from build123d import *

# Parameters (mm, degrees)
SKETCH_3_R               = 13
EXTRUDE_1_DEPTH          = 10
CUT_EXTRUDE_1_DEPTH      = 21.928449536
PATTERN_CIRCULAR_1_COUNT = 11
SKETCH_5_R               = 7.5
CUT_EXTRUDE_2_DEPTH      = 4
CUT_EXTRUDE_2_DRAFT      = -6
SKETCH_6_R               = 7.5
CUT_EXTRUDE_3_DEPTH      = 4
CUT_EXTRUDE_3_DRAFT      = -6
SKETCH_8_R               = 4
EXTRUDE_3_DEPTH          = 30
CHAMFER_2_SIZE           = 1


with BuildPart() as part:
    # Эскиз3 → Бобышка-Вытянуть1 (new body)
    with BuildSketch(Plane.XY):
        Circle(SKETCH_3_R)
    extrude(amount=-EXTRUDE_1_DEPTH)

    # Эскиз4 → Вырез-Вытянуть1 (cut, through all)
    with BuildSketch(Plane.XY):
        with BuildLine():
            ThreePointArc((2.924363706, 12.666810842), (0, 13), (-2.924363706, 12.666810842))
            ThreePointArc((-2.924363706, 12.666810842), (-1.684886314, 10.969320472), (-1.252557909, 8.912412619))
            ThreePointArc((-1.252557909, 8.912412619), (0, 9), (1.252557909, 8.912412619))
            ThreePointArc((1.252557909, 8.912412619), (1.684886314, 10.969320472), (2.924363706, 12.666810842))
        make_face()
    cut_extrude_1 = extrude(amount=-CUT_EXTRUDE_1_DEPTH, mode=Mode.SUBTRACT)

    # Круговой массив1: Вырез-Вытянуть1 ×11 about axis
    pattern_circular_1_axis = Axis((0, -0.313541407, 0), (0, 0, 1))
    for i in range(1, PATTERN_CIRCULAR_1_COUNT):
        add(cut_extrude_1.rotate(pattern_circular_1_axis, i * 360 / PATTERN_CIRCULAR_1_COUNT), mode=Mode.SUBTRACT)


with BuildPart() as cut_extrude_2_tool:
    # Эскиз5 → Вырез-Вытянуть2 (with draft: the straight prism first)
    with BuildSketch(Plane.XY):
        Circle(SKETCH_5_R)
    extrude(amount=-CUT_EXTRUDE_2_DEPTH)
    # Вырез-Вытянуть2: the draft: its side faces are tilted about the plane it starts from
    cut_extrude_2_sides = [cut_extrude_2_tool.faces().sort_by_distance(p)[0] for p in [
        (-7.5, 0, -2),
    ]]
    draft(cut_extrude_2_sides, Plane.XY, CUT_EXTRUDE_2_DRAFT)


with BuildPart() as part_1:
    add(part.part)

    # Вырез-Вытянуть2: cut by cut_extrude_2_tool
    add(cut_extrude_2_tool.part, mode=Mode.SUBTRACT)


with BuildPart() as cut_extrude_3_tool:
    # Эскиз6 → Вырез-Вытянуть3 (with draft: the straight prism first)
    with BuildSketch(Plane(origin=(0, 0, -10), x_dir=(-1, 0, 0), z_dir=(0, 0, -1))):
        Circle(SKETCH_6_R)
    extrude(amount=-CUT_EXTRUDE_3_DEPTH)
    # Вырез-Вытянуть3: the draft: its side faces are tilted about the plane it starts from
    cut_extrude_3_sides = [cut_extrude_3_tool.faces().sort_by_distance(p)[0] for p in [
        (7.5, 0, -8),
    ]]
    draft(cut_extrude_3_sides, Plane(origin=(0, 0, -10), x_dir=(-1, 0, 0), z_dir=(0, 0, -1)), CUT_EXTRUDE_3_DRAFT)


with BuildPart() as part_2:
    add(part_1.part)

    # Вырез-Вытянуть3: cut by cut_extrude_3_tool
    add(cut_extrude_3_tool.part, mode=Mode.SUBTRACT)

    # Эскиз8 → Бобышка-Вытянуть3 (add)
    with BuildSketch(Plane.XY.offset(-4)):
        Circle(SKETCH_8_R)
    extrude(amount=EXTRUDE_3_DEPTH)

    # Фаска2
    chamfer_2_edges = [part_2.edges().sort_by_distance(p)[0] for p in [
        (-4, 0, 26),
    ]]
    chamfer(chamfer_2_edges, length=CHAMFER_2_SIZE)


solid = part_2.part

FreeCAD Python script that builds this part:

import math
import FreeCAD as App
import Part
import Sketcher
Q = App.Units.Quantity


def edges_at(feature, points):
    """Names of the edges that pass closest to the given points."""
    edges = feature.Shape.Edges
    near = lambda p: min(range(len(edges)), key=lambda i: edges[i].distToShape(Part.Vertex(*p))[0])
    return sorted({f"Edge{near(p) + 1}" for p in points})


def faces_at(feature, points):
    """Names of the faces that lie closest to the given points."""
    faces = feature.Shape.Faces
    near = lambda p: min(range(len(faces)), key=lambda i: faces[i].distToShape(Part.Vertex(*p))[0])
    return sorted({f"Face{near(p) + 1}" for p in points})

doc = App.newDocument("Part")
body = doc.addObject("PartDesign::Body", "Body")

# Sketch on XY plane
sketch1 = body.newObject("Sketcher::SketchObject", "Sketch")
sketch1.AttachmentSupport = (doc.getObject("XY_Plane"), [""])
sketch1.MapMode = "FlatFace"
sketch1.addGeometry(Part.Circle(App.Vector(0, 0, 0), App.Vector(0, 0, 1), 13), False)
sketch1.addConstraint(Sketcher.Constraint("Coincident", 0, 3, -1, 1))
sketch1.addConstraint(Sketcher.Constraint("Diameter", 0, Q("26 mm")))
pad1 = body.newObject("PartDesign::Pad", "Pad")
pad1.Profile = sketch1
pad1.Length = 10
pad1.Reversed = True

# Sketch on XY plane
sketch2 = body.newObject("Sketcher::SketchObject", "Sketch001")
sketch2.AttachmentSupport = (doc.getObject("XY_Plane"), [""])
sketch2.MapMode = "FlatFace"
sketch2.addGeometry(Part.ArcOfCircle(Part.Circle(App.Vector(0, 0, 0), App.Vector(0, 0, 1), 13), math.radians(77), math.radians(103)), False)
sketch2.addGeometry(Part.ArcOfCircle(Part.Circle(App.Vector(-6.252505, 8.935394, 0), App.Vector(0, 0, 1), 5), math.radians(-0.263343), math.radians(48.269457)), False)
sketch2.addGeometry(Part.ArcOfCircle(Part.Circle(App.Vector(0, 0, 0), App.Vector(0, 0, 1), 9), math.radians(82), math.radians(98)), False)
sketch2.addGeometry(Part.ArcOfCircle(Part.Circle(App.Vector(6.252505, 8.935394, 0), App.Vector(0, 0, 1), 5), math.radians(131.730543), math.radians(180.263343)), False)
sketch2.addConstraint(Sketcher.Constraint("Coincident", 0, 2, 1, 2))
sketch2.addConstraint(Sketcher.Constraint("Coincident", 1, 1, 2, 2))
sketch2.addConstraint(Sketcher.Constraint("Coincident", 2, 1, 3, 2))
sketch2.addConstraint(Sketcher.Constraint("Coincident", 3, 1, 0, 1))
sketch2.addConstraint(Sketcher.Constraint("Coincident", 0, 3, -1, 1))
sketch2.addConstraint(Sketcher.Constraint("Coincident", 2, 3, -1, 1))
sketch2.addConstraint(Sketcher.Constraint("Equal", 1, 3))
sketch2.addConstraint(Sketcher.Constraint("Symmetric", 1, 3, 3, 3, -2))
sketch2.addConstraint(Sketcher.Constraint("Radius", 0, Q("13 mm")))
sketch2.addConstraint(Sketcher.Constraint("Radius", 1, Q("5 mm")))
sketch2.addConstraint(Sketcher.Constraint("Radius", 2, Q("9 mm")))
sketch2.addConstraint(Sketcher.Constraint("DistanceY", 1, 1, 0, 2, Q("3.754398 mm")))
sketch2.addConstraint(Sketcher.Constraint("DistanceY", -1, 1, 0, 2, Q("12.666811 mm")))
pocket1 = body.newObject("PartDesign::Pocket", "Pocket")
pocket1.Profile = sketch2
pocket1.Type = "ThroughAll"
doc.recompute()

datumline = body.newObject("PartDesign::Line", "DatumLine")
datumline.Placement = App.Placement(App.Vector(0, -0.313541, 0), App.Rotation(App.Vector(0, 0, 1), App.Vector(0, 0, 1)))
polarpattern = body.newObject("PartDesign::PolarPattern", "PolarPattern")
polarpattern.Originals = [pocket1]
polarpattern.Axis = (datumline, [""])
polarpattern.Angle = 360
polarpattern.Occurrences = 11
body.Tip = polarpattern
body2 = doc.addObject("PartDesign::Body", "Body001")

# Sketch on XY plane
sketch3 = body2.newObject("Sketcher::SketchObject", "Sketch002")
sketch3.AttachmentSupport = (doc.getObject("XY_Plane001"), [""])
sketch3.MapMode = "FlatFace"
sketch3.addGeometry(Part.Circle(App.Vector(0, 0, 0), App.Vector(0, 0, 1), 7.5), False)
sketch3.addConstraint(Sketcher.Constraint("Coincident", 0, 3, -1, 1))
sketch3.addConstraint(Sketcher.Constraint("Diameter", 0, Q("15 mm")))
pad2 = body2.newObject("PartDesign::Pad", "Pad001")
pad2.Profile = sketch3
pad2.Length = 4
pad2.Reversed = True
doc.recompute()

draft = body2.newObject("PartDesign::Draft", "Draft")
draft.Base = (pad2, faces_at(pad2, [(-7.5, 0, -2)]))
draft.NeutralPlane = (doc.getObject("XY_Plane001"), [""])
draft.Angle = 6
draft.Reversed = True
doc.recompute()

boolean = body.newObject("PartDesign::Boolean", "Boolean")
boolean.Type = "Cut"
boolean.addObjects([body2])
body3 = doc.addObject("PartDesign::Body", "Body002")

# Sketch on XY plane
sketch4 = body3.newObject("Sketcher::SketchObject", "Sketch003")
sketch4.AttachmentSupport = (doc.getObject("XY_Plane002"), [""])
sketch4.MapMode = "FlatFace"
sketch4.AttachmentOffset = App.Placement(App.Vector(0, 0, -10), App.Rotation())
sketch4.addGeometry(Part.Circle(App.Vector(0, 0, 0), App.Vector(0, 0, 1), 7.5), False)
sketch4.addConstraint(Sketcher.Constraint("Coincident", 0, 3, -1, 1))
sketch4.addConstraint(Sketcher.Constraint("Diameter", 0, Q("15 mm")))
pad3 = body3.newObject("PartDesign::Pad", "Pad002")
pad3.Profile = sketch4
pad3.Length = 4
doc.recompute()

datumplane = body3.newObject("PartDesign::Plane", "DatumPlane")
datumplane.AttachmentSupport = (doc.getObject("XY_Plane002"), [""])
datumplane.MapMode = "FlatFace"
datumplane.AttachmentOffset = App.Placement(App.Vector(0, 0, -10), App.Rotation())
draft2 = body3.newObject("PartDesign::Draft", "Draft001")
draft2.Base = (pad3, faces_at(pad3, [(7.5, 0, -8)]))
draft2.NeutralPlane = (datumplane, [""])
draft2.Angle = 6
draft2.Reversed = False
doc.recompute()

boolean2 = body.newObject("PartDesign::Boolean", "Boolean001")
boolean2.Type = "Cut"
boolean2.addObjects([body3])

# Sketch on XY plane
sketch5 = body.newObject("Sketcher::SketchObject", "Sketch004")
sketch5.AttachmentSupport = (doc.getObject("XY_Plane"), [""])
sketch5.MapMode = "FlatFace"
sketch5.AttachmentOffset = App.Placement(App.Vector(0, 0, -4), App.Rotation())
sketch5.addGeometry(Part.Circle(App.Vector(0, 0, 0), App.Vector(0, 0, 1), 4), False)
sketch5.addConstraint(Sketcher.Constraint("Coincident", 0, 3, -1, 1))
sketch5.addConstraint(Sketcher.Constraint("Diameter", 0, Q("8 mm")))
pad4 = body.newObject("PartDesign::Pad", "Pad003")
pad4.Profile = sketch5
pad4.Length = 30
doc.recompute()

chamfer = body.newObject("PartDesign::Chamfer", "Chamfer")
chamfer.Base = (pad4, edges_at(pad4, [(-4, 0, 26)]))
chamfer.Size = 1

doc.recompute()
